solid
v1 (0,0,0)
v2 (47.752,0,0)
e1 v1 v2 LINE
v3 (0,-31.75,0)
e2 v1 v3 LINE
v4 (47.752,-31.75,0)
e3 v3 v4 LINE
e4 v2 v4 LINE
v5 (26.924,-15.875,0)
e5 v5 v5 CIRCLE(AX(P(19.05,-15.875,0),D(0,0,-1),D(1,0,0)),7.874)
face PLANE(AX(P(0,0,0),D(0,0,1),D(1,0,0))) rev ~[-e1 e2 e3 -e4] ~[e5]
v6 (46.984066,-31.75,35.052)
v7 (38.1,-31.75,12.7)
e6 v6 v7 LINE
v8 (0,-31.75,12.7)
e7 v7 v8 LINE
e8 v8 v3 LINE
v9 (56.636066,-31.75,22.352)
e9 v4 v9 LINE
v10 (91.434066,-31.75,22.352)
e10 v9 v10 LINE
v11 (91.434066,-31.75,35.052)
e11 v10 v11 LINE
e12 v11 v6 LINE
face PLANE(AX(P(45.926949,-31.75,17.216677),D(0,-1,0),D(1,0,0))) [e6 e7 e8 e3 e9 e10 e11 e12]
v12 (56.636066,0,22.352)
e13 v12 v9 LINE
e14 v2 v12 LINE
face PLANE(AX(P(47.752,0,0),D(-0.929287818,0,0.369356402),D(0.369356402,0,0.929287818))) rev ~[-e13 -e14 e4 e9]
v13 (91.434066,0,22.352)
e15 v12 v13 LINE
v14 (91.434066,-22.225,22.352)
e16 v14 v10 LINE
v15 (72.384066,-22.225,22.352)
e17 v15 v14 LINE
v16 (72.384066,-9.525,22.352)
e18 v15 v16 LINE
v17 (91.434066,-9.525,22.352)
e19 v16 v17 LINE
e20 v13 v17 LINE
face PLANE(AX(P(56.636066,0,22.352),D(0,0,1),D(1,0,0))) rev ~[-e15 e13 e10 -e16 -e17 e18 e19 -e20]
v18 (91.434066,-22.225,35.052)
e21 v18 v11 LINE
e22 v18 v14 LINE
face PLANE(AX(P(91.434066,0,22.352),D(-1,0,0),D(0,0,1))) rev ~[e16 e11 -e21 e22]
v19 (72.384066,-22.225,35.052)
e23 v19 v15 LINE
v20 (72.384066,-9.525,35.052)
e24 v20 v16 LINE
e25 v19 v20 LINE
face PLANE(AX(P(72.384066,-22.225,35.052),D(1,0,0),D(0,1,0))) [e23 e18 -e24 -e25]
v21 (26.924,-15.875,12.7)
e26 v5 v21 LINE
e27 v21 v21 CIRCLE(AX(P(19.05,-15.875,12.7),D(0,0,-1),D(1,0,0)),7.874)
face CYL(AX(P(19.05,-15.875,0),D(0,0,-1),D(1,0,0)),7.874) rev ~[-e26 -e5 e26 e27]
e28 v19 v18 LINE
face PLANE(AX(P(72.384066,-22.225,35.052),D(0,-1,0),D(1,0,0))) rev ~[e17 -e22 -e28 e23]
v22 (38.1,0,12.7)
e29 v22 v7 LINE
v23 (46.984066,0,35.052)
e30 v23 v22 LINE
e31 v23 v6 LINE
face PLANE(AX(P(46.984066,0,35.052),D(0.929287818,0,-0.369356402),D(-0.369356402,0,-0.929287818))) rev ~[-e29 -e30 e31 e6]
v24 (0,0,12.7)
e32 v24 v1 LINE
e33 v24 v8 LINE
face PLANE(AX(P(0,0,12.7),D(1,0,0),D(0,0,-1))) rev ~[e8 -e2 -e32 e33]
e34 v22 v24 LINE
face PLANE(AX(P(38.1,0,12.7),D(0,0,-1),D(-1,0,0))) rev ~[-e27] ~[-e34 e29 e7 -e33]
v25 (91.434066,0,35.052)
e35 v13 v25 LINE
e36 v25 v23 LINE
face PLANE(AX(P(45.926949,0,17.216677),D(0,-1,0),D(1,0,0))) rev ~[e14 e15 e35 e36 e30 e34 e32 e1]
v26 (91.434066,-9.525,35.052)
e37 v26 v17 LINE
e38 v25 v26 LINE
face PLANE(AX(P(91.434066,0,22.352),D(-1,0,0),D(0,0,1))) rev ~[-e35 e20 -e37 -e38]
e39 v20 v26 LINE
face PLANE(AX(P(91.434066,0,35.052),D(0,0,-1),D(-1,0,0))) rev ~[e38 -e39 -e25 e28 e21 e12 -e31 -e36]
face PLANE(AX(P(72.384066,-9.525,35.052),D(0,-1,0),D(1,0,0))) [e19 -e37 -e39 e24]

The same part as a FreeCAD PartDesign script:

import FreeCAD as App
import Part
import Sketcher

V = App.Vector
Q = App.Units.Quantity

doc = App.newDocument("Part")
body = doc.addObject("PartDesign::Body", "Body")

# Sketch on XZ plane
sketch1 = body.newObject("Sketcher::SketchObject", "Sketch")
sketch1.AttachmentSupport = (doc.getObject("XZ_Plane"), [""])
sketch1.MapMode = "FlatFace"
sketch1.addGeometry(Part.LineSegment(V(0, 13, 0), V(0, 0, 0)), False)
sketch1.addGeometry(Part.LineSegment(V(0, 0, 0), V(48, 0, 0)), False)
sketch1.addGeometry(Part.LineSegment(V(48, 0, 0), V(57, 22, 0)), False)
sketch1.addGeometry(Part.LineSegment(V(57, 22, 0), V(91, 22, 0)), False)
sketch1.addGeometry(Part.LineSegment(V(91, 22, 0), V(91, 35, 0)), False)
sketch1.addGeometry(Part.LineSegment(V(91, 35, 0), V(47, 35, 0)), False)
sketch1.addGeometry(Part.LineSegment(V(47, 35, 0), V(38, 13, 0)), False)
sketch1.addGeometry(Part.LineSegment(V(38, 13, 0), V(0, 13, 0)), False)
sketch1.addConstraint(Sketcher.Constraint("Coincident", 0, 2, 1, 1))
sketch1.addConstraint(Sketcher.Constraint("Coincident", 1, 2, 2, 1))
sketch1.addConstraint(Sketcher.Constraint("Coincident", 2, 2, 3, 1))
sketch1.addConstraint(Sketcher.Constraint("Coincident", 3, 2, 4, 1))
sketch1.addConstraint(Sketcher.Constraint("Coincident", 4, 2, 5, 1))
sketch1.addConstraint(Sketcher.Constraint("Coincident", 5, 2, 6, 1))
sketch1.addConstraint(Sketcher.Constraint("Coincident", 6, 2, 7, 1))
sketch1.addConstraint(Sketcher.Constraint("Coincident", 7, 2, 0, 1))
sketch1.addConstraint(Sketcher.Constraint("Vertical", 0))
sketch1.addConstraint(Sketcher.Constraint("Horizontal", 1))
sketch1.addConstraint(Sketcher.Constraint("Horizontal", 3))
sketch1.addConstraint(Sketcher.Constraint("Vertical", 4))
sketch1.addConstraint(Sketcher.Constraint("Horizontal", 5))
sketch1.addConstraint(Sketcher.Constraint("Horizontal", 7))
sketch1.addConstraint(Sketcher.Constraint("Coincident", 0, 2, -1, 1))
sketch1.addConstraint(Sketcher.Constraint("Parallel", 2, 6))
sketch1.addConstraint(Sketcher.Constraint("Equal", 0, 4))
sketch1.addConstraint(Sketcher.Constraint("DistanceX", 7, 2, 7, 1, Q("1.5 in")))
sketch1.addConstraint(Sketcher.Constraint("DistanceY", 0, 2, 0, 1, Q("0.5 in")))
sketch1.addConstraint(Sketcher.Constraint("DistanceX", 1, 1, 1, 2, Q("1.88 in")))
sketch1.addConstraint(Sketcher.Constraint("DistanceX", 3, 1, 3, 2, Q("1.37 in")))
sketch1.addConstraint(Sketcher.Constraint("DistanceY", -1, 1, 2, 2, Q("0.88 in")))
sketch1.addConstraint(Sketcher.Constraint("Distance", 2, Q("24.052828 mm")))
pad1 = body.newObject("PartDesign::Pad", "Pad")
pad1.Profile = sketch1
pad1.Length = Q("1.25 in")

# Sketch on XY plane
sketch2 = body.newObject("Sketcher::SketchObject", "Sketch001")
sketch2.AttachmentSupport = (doc.getObject("XY_Plane"), [""])
sketch2.MapMode = "FlatFace"
sketch2.AttachmentOffset = App.Placement(V(0, 0, 1.38 * 25.4), App.Rotation())
sketch2.addGeometry(Part.LineSegment(V(72, -10, 0), V(72, -22, 0)), False)
sketch2.addGeometry(Part.LineSegment(V(72, -22, 0), V(91, -22, 0)), False)
sketch2.addGeometry(Part.LineSegment(V(91, -22, 0), V(91, -10, 0)), False)
sketch2.addGeometry(Part.LineSegment(V(91, -10, 0), V(72, -10, 0)), False)
sketch2.addConstraint(Sketcher.Constraint("Coincident", 0, 2, 1, 1))
sketch2.addConstraint(Sketcher.Constraint("Coincident", 1, 2, 2, 1))
sketch2.addConstraint(Sketcher.Constraint("Coincident", 2, 2, 3, 1))
sketch2.addConstraint(Sketcher.Constraint("Coincident", 3, 2, 0, 1))
sketch2.addConstraint(Sketcher.Constraint("Vertical", 0))
sketch2.addConstraint(Sketcher.Constraint("Horizontal", 1))
sketch2.addConstraint(Sketcher.Constraint("Vertical", 2))
sketch2.addConstraint(Sketcher.Constraint("Horizontal", 3))
sketch2.addConstraint(Sketcher.Constraint("DistanceY", 0, 2, 0, 1, Q("0.5 in")))
sketch2.addConstraint(Sketcher.Constraint("DistanceX", 1, 1, 1, 2, Q("0.75 in")))
sketch2.addConstraint(Sketcher.Constraint("DistanceY", 0, 2, -1, 1, Q("0.875 in")))
sketch2.addConstraint(Sketcher.Constraint("DistanceX", -1, 1, 0, 2, Q("72.384066 mm")))
pocket1 = body.newObject("PartDesign::Pocket", "Pocket")
pocket1.Profile = sketch2
pocket1.Type = "ThroughAll"

# Sketch on XY plane
sketch3 = body.newObject("Sketcher::SketchObject", "Sketch002")
sketch3.AttachmentSupport = (doc.getObject("XY_Plane"), [""])
sketch3.MapMode = "FlatFace"
sketch3.addGeometry(Part.Circle(V(19, -16, 0), V(0, 0, 1), 8), False)
sketch3.addConstraint(Sketcher.Constraint("Diameter", 0, Q("0.62 in")))
sketch3.addConstraint(Sketcher.Constraint("DistanceX", -1, 1, 0, 3, Q("0.75 in")))
sketch3.addConstraint(Sketcher.Constraint("DistanceY", 0, 3, -1, 1, Q("0.625 in")))
pocket2 = body.newObject("PartDesign::Pocket", "Pocket001")
pocket2.Profile = sketch3
pocket2.Type = "ThroughAll"
pocket2.Reversed = True

doc.recompute()
